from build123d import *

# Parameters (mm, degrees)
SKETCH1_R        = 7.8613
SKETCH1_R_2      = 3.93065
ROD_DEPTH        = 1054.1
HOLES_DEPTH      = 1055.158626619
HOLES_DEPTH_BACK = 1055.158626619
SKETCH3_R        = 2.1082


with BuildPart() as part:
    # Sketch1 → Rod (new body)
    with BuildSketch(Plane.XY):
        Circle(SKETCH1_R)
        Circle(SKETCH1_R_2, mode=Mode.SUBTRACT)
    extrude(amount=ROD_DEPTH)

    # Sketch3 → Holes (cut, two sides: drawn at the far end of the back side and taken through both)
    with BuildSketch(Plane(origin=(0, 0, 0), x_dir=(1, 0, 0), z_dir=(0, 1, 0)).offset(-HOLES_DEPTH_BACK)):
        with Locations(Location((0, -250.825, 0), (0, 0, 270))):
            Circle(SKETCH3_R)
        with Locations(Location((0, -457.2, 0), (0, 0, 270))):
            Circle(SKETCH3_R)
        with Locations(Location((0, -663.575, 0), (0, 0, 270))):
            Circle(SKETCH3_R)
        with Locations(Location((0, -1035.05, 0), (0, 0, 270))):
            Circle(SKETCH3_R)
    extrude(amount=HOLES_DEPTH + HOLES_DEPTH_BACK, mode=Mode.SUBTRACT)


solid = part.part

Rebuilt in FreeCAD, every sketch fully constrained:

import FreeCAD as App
import Part
import Sketcher
from FreeCAD import Vector
Q = App.Units.Quantity

doc = App.newDocument("Part")
body = doc.addObject("PartDesign::Body", "Body")

# Sketch on XY plane
sketch1 = body.newObject("Sketcher::SketchObject", "Sketch")
sketch1.AttachmentSupport = (doc.getObject("XY_Plane"), [""])
sketch1.MapMode = "FlatFace"
sketch1.addGeometry([
    Part.Circle(Vector(0, 0, 0), Vector(0, 0, 1), 7.8613),
    Part.Circle(Vector(0, 0, 0), Vector(0, 0, 1), 3.93065),
], False)
sketch1.addConstraint([
    Sketcher.Constraint("Coincident", 0, 3, -1, 1),
    Sketcher.Constraint("Coincident", 1, 3, -1, 1),
    Sketcher.Constraint("Diameter", 0, Q("0.619 in")),
    Sketcher.Constraint("Diameter", 1, Q("0.3095 in")),
])
pad1 = body.newObject("PartDesign::Pad", "Pad")
pad1.Profile = sketch1
pad1.Length = Q("41.5 in")

# Sketch on XZ plane
sketch2 = body.newObject("Sketcher::SketchObject", "Sketch001")
sketch2.AttachmentSupport = (doc.getObject("XZ_Plane"), [""])
sketch2.MapMode = "FlatFace"
sketch2.addGeometry([
    Part.Circle(Vector(0, 250.825, 0), Vector(0, 0, 1), 2.1082),
    Part.Circle(Vector(0, 457.2, 0), Vector(0, 0, 1), 2.1082),
    Part.Circle(Vector(0, 663.575, 0), Vector(0, 0, 1), 2.1082),
    Part.Circle(Vector(0, 1035.05, 0), Vector(0, 0, 1), 2.1082),
], False)
sketch2.addConstraint([
    Sketcher.Constraint("Equal", 0, 1),
    Sketcher.Constraint("Equal", 1, 2),
    Sketcher.Constraint("Equal", 2, 3),
    Sketcher.Constraint("PointOnObject", 0, 3, -2),
    Sketcher.Constraint("PointOnObject", 1, 3, -2),
    Sketcher.Constraint("PointOnObject", 2, 3, -2),
    Sketcher.Constraint("PointOnObject", 3, 3, -2),
    Sketcher.Constraint("Diameter", 0, Q("0.166 in")),
    Sketcher.Constraint("DistanceY", -1, 1, 1, 3, Q("18 in")),
    Sketcher.Constraint("DistanceY", -1, 1, 3, 3, Q("40.75 in")),
    Sketcher.Constraint("DistanceY", 0, 3, 2, 3, Q("16.25 in")),
    Sketcher.Constraint("DistanceY", -1, 1, 0, 3, Q("9.875 in")),
])
pocket1 = body.newObject("PartDesign::Pocket", "Pocket")
pocket1.Profile = sketch2
pocket1.Type = "ThroughAll"
pocket1.Midplane = True

doc.recompute()
